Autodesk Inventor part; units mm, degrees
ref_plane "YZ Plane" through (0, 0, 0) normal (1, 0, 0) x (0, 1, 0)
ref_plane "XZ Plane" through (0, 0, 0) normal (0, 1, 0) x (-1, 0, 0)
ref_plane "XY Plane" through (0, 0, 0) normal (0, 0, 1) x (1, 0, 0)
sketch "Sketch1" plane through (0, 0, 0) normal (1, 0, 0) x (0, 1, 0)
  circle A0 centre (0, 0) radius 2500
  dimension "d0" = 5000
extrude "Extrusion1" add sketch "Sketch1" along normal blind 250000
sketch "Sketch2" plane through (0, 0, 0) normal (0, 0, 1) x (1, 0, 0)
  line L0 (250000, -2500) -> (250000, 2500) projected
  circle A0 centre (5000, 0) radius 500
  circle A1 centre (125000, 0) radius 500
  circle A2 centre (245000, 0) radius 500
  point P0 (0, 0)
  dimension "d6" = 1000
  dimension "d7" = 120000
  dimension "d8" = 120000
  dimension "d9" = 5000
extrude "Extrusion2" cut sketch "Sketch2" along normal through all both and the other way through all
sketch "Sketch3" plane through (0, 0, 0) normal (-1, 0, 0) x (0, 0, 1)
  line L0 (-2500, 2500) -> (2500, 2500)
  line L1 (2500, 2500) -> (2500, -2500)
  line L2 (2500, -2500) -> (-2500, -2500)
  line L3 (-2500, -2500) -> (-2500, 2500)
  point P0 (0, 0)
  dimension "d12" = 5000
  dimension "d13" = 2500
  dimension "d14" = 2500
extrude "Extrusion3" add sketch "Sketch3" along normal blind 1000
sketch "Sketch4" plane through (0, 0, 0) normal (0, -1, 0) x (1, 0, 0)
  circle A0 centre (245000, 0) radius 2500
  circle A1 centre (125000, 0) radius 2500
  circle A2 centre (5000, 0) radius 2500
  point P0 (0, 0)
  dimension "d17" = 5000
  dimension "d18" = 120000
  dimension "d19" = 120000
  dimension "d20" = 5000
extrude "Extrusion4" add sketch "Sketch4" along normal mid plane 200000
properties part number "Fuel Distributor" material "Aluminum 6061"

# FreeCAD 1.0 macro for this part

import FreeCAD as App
import Part
import Sketcher
Q = App.Units.Quantity

doc = App.newDocument("Part")
body = doc.addObject("PartDesign::Body", "Body")

# Sketch on YZ plane
sketch1 = body.newObject("Sketcher::SketchObject", "Sketch")
sketch1.AttachmentSupport = (doc.getObject("YZ_Plane"), [""])
sketch1.MapMode = "FlatFace"
sketch1.addGeometry(Part.Circle(App.Vector(0, 0, 0), App.Vector(0, 0, 1), 2500), False)
sketch1.addConstraint(Sketcher.Constraint("Coincident", 0, 3, -1, 1))
sketch1.addConstraint(Sketcher.Constraint("Diameter", 0, Q("5000 mm")))
pad1 = body.newObject("PartDesign::Pad", "Pad")
pad1.Profile = sketch1
pad1.Length = 250000

# Sketch on XY plane
sketch2 = body.newObject("Sketcher::SketchObject", "Sketch001")
sketch2.AttachmentSupport = (doc.getObject("XY_Plane"), [""])
sketch2.MapMode = "FlatFace"
sketch2.addGeometry(Part.Circle(App.Vector(5000, 0, 0), App.Vector(0, 0, 1), 500), False)
sketch2.addGeometry(Part.Circle(App.Vector(125000, 0, 0), App.Vector(0, 0, 1), 500), False)
sketch2.addGeometry(Part.Circle(App.Vector(245000, 0, 0), App.Vector(0, 0, 1), 500), False)
sketch2.addConstraint(Sketcher.Constraint("Equal", 0, 1))
sketch2.addConstraint(Sketcher.Constraint("Equal", 1, 2))
sketch2.addConstraint(Sketcher.Constraint("PointOnObject", 0, 3, -1))
sketch2.addConstraint(Sketcher.Constraint("PointOnObject", 1, 3, -1))
sketch2.addConstraint(Sketcher.Constraint("PointOnObject", 2, 3, -1))
sketch2.addConstraint(Sketcher.Constraint("Diameter", 0, Q("1000 mm")))
sketch2.addConstraint(Sketcher.Constraint("DistanceX", -1, 1, 0, 3, Q("5000 mm")))
sketch2.addConstraint(Sketcher.Constraint("DistanceX", 0, 3, 1, 3, Q("120000 mm")))
sketch2.addConstraint(Sketcher.Constraint("DistanceX", 1, 3, 2, 3, Q("120000 mm")))
pocket1 = body.newObject("PartDesign::Pocket", "Pocket")
pocket1.Profile = sketch2
pocket1.Type = "ThroughAll"
pocket1.Midplane = True

# Sketch on YZ plane
sketch3 = body.newObject("Sketcher::SketchObject", "Sketch002")
sketch3.AttachmentSupport = (doc.getObject("YZ_Plane"), [""])
sketch3.MapMode = "FlatFace"
sketch3.addGeometry(Part.LineSegment(App.Vector(2500, 2500, 0), App.Vector(2500, -2500, 0)), False)
sketch3.addGeometry(Part.LineSegment(App.Vector(2500, -2500, 0), App.Vector(-2500, -2500, 0)), False)
sketch3.addGeometry(Part.LineSegment(App.Vector(-2500, -2500, 0), App.Vector(-2500, 2500, 0)), False)
sketch3.addGeometry(Part.LineSegment(App.Vector(-2500, 2500, 0), App.Vector(2500, 2500, 0)), False)
sketch3.addConstraint(Sketcher.Constraint("Coincident", 0, 2, 1, 1))
sketch3.addConstraint(Sketcher.Constraint("Coincident", 1, 2, 2, 1))
sketch3.addConstraint(Sketcher.Constraint("Coincident", 2, 2, 3, 1))
sketch3.addConstraint(Sketcher.Constraint("Coincident", 3, 2, 0, 1))
sketch3.addConstraint(Sketcher.Constraint("Vertical", 0))
sketch3.addConstraint(Sketcher.Constraint("Horizontal", 1))
sketch3.addConstraint(Sketcher.Constraint("Vertical", 2))
sketch3.addConstraint(Sketcher.Constraint("Horizontal", 3))
sketch3.addConstraint(Sketcher.Constraint("Symmetric", 0, 2, 2, 2, -1, 1))
sketch3.addConstraint(Sketcher.Constraint("Equal", 3, 0))
sketch3.addConstraint(Sketcher.Constraint("DistanceX", 1, 2, 1, 1, Q("5000 mm")))
pad2 = body.newObject("PartDesign::Pad", "Pad001")
pad2.Profile = sketch3
pad2.Length = 1000
pad2.Reversed = True

# Sketch on XZ plane
sketch4 = body.newObject("Sketcher::SketchObject", "Sketch003")
sketch4.AttachmentSupport = (doc.getObject("XZ_Plane"), [""])
sketch4.MapMode = "FlatFace"
sketch4.addGeometry(Part.Circle(App.Vector(245000, 0, 0), App.Vector(0, 0, 1), 2500), False)
sketch4.addGeometry(Part.Circle(App.Vector(125000, 0, 0), App.Vector(0, 0, 1), 2500), False)
sketch4.addGeometry(Part.Circle(App.Vector(5000, 0, 0), App.Vector(0, 0, 1), 2500), False)
sketch4.addConstraint(Sketcher.Constraint("Equal", 0, 1))
sketch4.addConstraint(Sketcher.Constraint("Equal", 1, 2))
sketch4.addConstraint(Sketcher.Constraint("PointOnObject", 0, 3, -1))
sketch4.addConstraint(Sketcher.Constraint("PointOnObject", 1, 3, -1))
sketch4.addConstraint(Sketcher.Constraint("PointOnObject", 2, 3, -1))
sketch4.addConstraint(Sketcher.Constraint("Diameter", 0, Q("5000 mm")))
sketch4.addConstraint(Sketcher.Constraint("DistanceX", -1, 1, 2, 3, Q("5000 mm")))
sketch4.addConstraint(Sketcher.Constraint("DistanceX", 1, 3, 0, 3, Q("120000 mm")))
sketch4.addConstraint(Sketcher.Constraint("DistanceX", 2, 3, 1, 3, Q("120000 mm")))
pad3 = body.newObject("PartDesign::Pad", "Pad002")
pad3.Profile = sketch4
pad3.Length = 200000
pad3.Midplane = True

doc.recompute()
